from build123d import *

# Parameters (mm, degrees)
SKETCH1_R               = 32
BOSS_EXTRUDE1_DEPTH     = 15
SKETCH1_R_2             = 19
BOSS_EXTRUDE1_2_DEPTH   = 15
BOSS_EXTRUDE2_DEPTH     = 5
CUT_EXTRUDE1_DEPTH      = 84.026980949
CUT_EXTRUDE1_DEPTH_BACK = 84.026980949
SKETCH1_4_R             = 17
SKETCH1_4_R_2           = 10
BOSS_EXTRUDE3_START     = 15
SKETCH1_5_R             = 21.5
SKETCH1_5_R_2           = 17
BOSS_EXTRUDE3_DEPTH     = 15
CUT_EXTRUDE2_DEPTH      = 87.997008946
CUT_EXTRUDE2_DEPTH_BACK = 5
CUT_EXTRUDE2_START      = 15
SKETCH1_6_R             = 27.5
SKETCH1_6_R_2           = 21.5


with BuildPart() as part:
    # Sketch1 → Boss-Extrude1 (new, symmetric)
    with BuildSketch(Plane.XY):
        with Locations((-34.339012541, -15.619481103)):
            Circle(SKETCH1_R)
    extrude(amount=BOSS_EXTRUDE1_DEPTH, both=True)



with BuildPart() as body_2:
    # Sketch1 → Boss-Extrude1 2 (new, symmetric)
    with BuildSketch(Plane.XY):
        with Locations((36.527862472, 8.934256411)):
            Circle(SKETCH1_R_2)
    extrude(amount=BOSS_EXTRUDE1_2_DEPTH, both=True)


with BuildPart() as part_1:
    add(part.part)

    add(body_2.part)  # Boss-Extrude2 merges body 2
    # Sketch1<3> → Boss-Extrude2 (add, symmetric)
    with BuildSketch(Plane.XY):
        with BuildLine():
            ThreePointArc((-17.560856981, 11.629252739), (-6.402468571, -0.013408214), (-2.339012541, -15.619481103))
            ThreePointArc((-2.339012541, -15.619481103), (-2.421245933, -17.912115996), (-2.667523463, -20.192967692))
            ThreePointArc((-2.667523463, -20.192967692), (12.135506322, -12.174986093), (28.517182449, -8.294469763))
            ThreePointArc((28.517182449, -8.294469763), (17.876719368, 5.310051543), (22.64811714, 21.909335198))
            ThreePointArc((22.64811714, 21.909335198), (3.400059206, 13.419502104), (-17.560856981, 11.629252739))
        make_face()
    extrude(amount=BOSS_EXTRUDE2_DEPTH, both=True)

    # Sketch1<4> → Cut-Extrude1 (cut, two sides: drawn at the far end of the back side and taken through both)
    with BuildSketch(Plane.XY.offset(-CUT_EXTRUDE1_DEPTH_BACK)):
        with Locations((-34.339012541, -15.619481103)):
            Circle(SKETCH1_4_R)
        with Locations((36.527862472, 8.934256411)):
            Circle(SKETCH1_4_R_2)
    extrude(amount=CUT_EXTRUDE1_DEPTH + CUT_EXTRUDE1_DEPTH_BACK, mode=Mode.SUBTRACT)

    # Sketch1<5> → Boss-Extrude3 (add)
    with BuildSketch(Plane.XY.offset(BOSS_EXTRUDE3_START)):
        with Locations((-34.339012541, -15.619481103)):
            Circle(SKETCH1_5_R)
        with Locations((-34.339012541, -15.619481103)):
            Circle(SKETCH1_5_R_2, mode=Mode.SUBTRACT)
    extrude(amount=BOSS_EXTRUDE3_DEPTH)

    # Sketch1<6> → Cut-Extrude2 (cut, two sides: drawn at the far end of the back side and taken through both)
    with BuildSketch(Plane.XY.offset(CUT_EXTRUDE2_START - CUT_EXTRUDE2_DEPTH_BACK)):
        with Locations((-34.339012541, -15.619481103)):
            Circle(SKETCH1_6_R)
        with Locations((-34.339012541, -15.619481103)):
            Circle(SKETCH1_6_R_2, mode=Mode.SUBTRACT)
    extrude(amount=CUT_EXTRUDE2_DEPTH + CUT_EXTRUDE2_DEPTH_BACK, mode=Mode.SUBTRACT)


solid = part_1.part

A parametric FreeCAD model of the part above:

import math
import FreeCAD as App
import Part
import Sketcher

V = App.Vector
Q = App.Units.Quantity

doc = App.newDocument("Part")
body = doc.addObject("PartDesign::Body", "Body")

# Sketch on XY plane
sketch1 = body.newObject("Sketcher::SketchObject", "Sketch")
sketch1.AttachmentSupport = (doc.getObject("XY_Plane"), [""])
sketch1.MapMode = "FlatFace"
sketch1.addGeometry(Part.Circle(V(-34.339013, -15.619481, 0), V(0, 0, 1), 32), False)
sketch1.addConstraint([
    Sketcher.Constraint("Diameter", 0, Q("64 mm")),
    Sketcher.Constraint("DistanceY", 0, 3, -1, 1, Q("15.619481 mm")),
    Sketcher.Constraint("DistanceX", 0, 3, -1, 1, Q("34.339013 mm")),
])
pad1 = body.newObject("PartDesign::Pad", "Pad")
pad1.Profile = sketch1
pad1.Length = 30
pad1.Midplane = True
body2 = doc.addObject("PartDesign::Body", "Body001")

# Sketch on XY plane
sketch2 = body2.newObject("Sketcher::SketchObject", "Sketch001")
sketch2.AttachmentSupport = (doc.getObject("XY_Plane001"), [""])
sketch2.MapMode = "FlatFace"
sketch2.addGeometry(Part.Circle(V(36.527862, 8.934256, 0), V(0, 0, 1), 19), False)
sketch2.addConstraint([
    Sketcher.Constraint("Diameter", 0, Q("38 mm")),
    Sketcher.Constraint("DistanceX", -1, 1, 0, 3, Q("36.527862 mm")),
    Sketcher.Constraint("DistanceY", -1, 1, 0, 3, Q("8.934256 mm")),
])
pad2 = body2.newObject("PartDesign::Pad", "Pad001")
pad2.Profile = sketch2
pad2.Length = 30
pad2.Midplane = True
body.AllowCompound = True
doc.recompute()

boolean = body.newObject("PartDesign::Boolean", "Boolean")
boolean.Type = "Fuse"
boolean.addObjects([body2])

# Sketch on XY plane
sketch3 = body.newObject("Sketcher::SketchObject", "Sketch002")
sketch3.AttachmentSupport = (doc.getObject("XY_Plane"), [""])
sketch3.MapMode = "FlatFace"
sketch3.addGeometry([
    Part.ArcOfCircle(Part.Circle(V(-34.339013, -15.619481, 0), V(0, 0, 1), 32), math.radians(0), math.radians(58.3777)),  # 0
    Part.ArcOfCircle(Part.Circle(V(-34.339013, -15.619481, 0), V(0, 0, 1), 32), math.radians(-8.216934), math.radians(0)),  # 1
    Part.ArcOfCircle(Part.Circle(V(34.950366, -71.970322, 0), V(0, 0, 1), 64), math.radians(95.769028), math.radians(125.999594)),  # 2
    Part.ArcOfCircle(Part.Circle(V(36.527862, 8.934256, 0), V(0, 0, 1), 19), math.radians(136.929411), math.radians(245.063425)),  # 3
    Part.ArcOfCircle(Part.Circle(V(-12.45268, 75.425072, 0), V(0, 0, 1), 64), math.radians(-94.577948), math.radians(-56.739262)),  # 4
], False)
sketch3.addConstraint([
    Sketcher.Constraint("Tangent", 0, 1, 1, 2),
    Sketcher.Constraint("Coincident", 1, 1, 2, 2),
    Sketcher.Constraint("Coincident", 2, 1, 3, 2),
    Sketcher.Constraint("Coincident", 3, 1, 4, 2),
    Sketcher.Constraint("Coincident", 4, 1, 0, 2),
    Sketcher.Constraint("Equal", 0, 1),
    Sketcher.Constraint("Equal", 2, 4),
    Sketcher.Constraint("Horizontal", 1, 3, 0, 1),
    Sketcher.Constraint("Radius", 0, Q("32 mm")),
    Sketcher.Constraint("Radius", 2, Q("64 mm")),
    Sketcher.Constraint("Radius", 3, Q("19 mm")),
    Sketcher.Constraint("DistanceY", 0, 3, -1, 1, Q("15.619481 mm")),
    Sketcher.Constraint("DistanceY", 2, 3, -1, 1, Q("71.970322 mm")),
    Sketcher.Constraint("DistanceX", 4, 3, -1, 1, Q("12.45268 mm")),
    Sketcher.Constraint("DistanceY", -1, 1, 4, 3, Q("75.425072 mm")),
    Sketcher.Constraint("DistanceY", 2, 1, -1, 1, Q("8.29447 mm")),
    Sketcher.Constraint("DistanceX", 0, 3, 2, 3, Q("69.289378 mm")),
    Sketcher.Constraint("DistanceY", 2, 3, 3, 3, Q("80.904578 mm")),
    Sketcher.Constraint("DistanceY", 3, 3, 3, 1, Q("12.975079 mm")),
])
pad3 = body.newObject("PartDesign::Pad", "Pad002")
pad3.Profile = sketch3
pad3.Length = 10
pad3.Midplane = True

# Sketch on XY plane
sketch4 = body.newObject("Sketcher::SketchObject", "Sketch003")
sketch4.AttachmentSupport = (doc.getObject("XY_Plane"), [""])
sketch4.MapMode = "FlatFace"
sketch4.addGeometry([
    Part.Circle(V(-34.339013, -15.619481, 0), V(0, 0, 1), 17),
    Part.Circle(V(36.527862, 8.934256, 0), V(0, 0, 1), 10),
], False)
sketch4.addConstraint([
    Sketcher.Constraint("Diameter", 0, Q("34 mm")),
    Sketcher.Constraint("Diameter", 1, Q("20 mm")),
    Sketcher.Constraint("DistanceY", 0, 3, -1, 1, Q("15.619481 mm")),
    Sketcher.Constraint("DistanceX", 0, 3, -1, 1, Q("34.339013 mm")),
    Sketcher.Constraint("DistanceX", -1, 1, 1, 3, Q("36.527862 mm")),
    Sketcher.Constraint("DistanceY", -1, 1, 1, 3, Q("8.934256 mm")),
])
pocket1 = body.newObject("PartDesign::Pocket", "Pocket")
pocket1.Profile = sketch4
pocket1.Type = "ThroughAll"
pocket1.Midplane = True

# Sketch on XY plane
sketch5 = body.newObject("Sketcher::SketchObject", "Sketch004")
sketch5.AttachmentSupport = (doc.getObject("XY_Plane"), [""])
sketch5.MapMode = "FlatFace"
sketch5.AttachmentOffset = App.Placement(V(0, 0, 15), App.Rotation())
sketch5.addGeometry([
    Part.Circle(V(-34.339013, -15.619481, 0), V(0, 0, 1), 21.5),
    Part.Circle(V(-34.339013, -15.619481, 0), V(0, 0, 1), 17),
], False)
sketch5.addConstraint([
    Sketcher.Constraint("Coincident", 1, 3, 0, 3),
    Sketcher.Constraint("Diameter", 0, Q("43 mm")),
    Sketcher.Constraint("Diameter", 1, Q("34 mm")),
    Sketcher.Constraint("DistanceY", 0, 3, -1, 1, Q("15.619481 mm")),
    Sketcher.Constraint("DistanceX", 0, 3, -1, 1, Q("34.339013 mm")),
])
pad4 = body.newObject("PartDesign::Pad", "Pad003")
pad4.Profile = sketch5
pad4.Length = 15

# Sketch on XY plane
sketch6 = body.newObject("Sketcher::SketchObject", "Sketch005")
sketch6.AttachmentSupport = (doc.getObject("XY_Plane"), [""])
sketch6.MapMode = "FlatFace"
sketch6.AttachmentOffset = App.Placement(V(0, 0, 15), App.Rotation())
sketch6.addGeometry([
    Part.Circle(V(-34.339013, -15.619481, 0), V(0, 0, 1), 27.5),
    Part.Circle(V(-34.339013, -15.619481, 0), V(0, 0, 1), 21.5),
], False)
sketch6.addConstraint([
    Sketcher.Constraint("Coincident", 1, 3, 0, 3),
    Sketcher.Constraint("Diameter", 0, Q("55 mm")),
    Sketcher.Constraint("Diameter", 1, Q("43 mm")),
    Sketcher.Constraint("DistanceY", 0, 3, -1, 1, Q("15.619481 mm")),
    Sketcher.Constraint("DistanceX", 0, 3, -1, 1, Q("34.339013 mm")),
])
pocket2 = body.newObject("PartDesign::Pocket", "Pocket001")
pocket2.Profile = sketch6
pocket2.Type = "TwoLengths"
pocket2.Length = 87.997009
pocket2.Length2 = 5
pocket2.Reversed = True

doc.recompute()
